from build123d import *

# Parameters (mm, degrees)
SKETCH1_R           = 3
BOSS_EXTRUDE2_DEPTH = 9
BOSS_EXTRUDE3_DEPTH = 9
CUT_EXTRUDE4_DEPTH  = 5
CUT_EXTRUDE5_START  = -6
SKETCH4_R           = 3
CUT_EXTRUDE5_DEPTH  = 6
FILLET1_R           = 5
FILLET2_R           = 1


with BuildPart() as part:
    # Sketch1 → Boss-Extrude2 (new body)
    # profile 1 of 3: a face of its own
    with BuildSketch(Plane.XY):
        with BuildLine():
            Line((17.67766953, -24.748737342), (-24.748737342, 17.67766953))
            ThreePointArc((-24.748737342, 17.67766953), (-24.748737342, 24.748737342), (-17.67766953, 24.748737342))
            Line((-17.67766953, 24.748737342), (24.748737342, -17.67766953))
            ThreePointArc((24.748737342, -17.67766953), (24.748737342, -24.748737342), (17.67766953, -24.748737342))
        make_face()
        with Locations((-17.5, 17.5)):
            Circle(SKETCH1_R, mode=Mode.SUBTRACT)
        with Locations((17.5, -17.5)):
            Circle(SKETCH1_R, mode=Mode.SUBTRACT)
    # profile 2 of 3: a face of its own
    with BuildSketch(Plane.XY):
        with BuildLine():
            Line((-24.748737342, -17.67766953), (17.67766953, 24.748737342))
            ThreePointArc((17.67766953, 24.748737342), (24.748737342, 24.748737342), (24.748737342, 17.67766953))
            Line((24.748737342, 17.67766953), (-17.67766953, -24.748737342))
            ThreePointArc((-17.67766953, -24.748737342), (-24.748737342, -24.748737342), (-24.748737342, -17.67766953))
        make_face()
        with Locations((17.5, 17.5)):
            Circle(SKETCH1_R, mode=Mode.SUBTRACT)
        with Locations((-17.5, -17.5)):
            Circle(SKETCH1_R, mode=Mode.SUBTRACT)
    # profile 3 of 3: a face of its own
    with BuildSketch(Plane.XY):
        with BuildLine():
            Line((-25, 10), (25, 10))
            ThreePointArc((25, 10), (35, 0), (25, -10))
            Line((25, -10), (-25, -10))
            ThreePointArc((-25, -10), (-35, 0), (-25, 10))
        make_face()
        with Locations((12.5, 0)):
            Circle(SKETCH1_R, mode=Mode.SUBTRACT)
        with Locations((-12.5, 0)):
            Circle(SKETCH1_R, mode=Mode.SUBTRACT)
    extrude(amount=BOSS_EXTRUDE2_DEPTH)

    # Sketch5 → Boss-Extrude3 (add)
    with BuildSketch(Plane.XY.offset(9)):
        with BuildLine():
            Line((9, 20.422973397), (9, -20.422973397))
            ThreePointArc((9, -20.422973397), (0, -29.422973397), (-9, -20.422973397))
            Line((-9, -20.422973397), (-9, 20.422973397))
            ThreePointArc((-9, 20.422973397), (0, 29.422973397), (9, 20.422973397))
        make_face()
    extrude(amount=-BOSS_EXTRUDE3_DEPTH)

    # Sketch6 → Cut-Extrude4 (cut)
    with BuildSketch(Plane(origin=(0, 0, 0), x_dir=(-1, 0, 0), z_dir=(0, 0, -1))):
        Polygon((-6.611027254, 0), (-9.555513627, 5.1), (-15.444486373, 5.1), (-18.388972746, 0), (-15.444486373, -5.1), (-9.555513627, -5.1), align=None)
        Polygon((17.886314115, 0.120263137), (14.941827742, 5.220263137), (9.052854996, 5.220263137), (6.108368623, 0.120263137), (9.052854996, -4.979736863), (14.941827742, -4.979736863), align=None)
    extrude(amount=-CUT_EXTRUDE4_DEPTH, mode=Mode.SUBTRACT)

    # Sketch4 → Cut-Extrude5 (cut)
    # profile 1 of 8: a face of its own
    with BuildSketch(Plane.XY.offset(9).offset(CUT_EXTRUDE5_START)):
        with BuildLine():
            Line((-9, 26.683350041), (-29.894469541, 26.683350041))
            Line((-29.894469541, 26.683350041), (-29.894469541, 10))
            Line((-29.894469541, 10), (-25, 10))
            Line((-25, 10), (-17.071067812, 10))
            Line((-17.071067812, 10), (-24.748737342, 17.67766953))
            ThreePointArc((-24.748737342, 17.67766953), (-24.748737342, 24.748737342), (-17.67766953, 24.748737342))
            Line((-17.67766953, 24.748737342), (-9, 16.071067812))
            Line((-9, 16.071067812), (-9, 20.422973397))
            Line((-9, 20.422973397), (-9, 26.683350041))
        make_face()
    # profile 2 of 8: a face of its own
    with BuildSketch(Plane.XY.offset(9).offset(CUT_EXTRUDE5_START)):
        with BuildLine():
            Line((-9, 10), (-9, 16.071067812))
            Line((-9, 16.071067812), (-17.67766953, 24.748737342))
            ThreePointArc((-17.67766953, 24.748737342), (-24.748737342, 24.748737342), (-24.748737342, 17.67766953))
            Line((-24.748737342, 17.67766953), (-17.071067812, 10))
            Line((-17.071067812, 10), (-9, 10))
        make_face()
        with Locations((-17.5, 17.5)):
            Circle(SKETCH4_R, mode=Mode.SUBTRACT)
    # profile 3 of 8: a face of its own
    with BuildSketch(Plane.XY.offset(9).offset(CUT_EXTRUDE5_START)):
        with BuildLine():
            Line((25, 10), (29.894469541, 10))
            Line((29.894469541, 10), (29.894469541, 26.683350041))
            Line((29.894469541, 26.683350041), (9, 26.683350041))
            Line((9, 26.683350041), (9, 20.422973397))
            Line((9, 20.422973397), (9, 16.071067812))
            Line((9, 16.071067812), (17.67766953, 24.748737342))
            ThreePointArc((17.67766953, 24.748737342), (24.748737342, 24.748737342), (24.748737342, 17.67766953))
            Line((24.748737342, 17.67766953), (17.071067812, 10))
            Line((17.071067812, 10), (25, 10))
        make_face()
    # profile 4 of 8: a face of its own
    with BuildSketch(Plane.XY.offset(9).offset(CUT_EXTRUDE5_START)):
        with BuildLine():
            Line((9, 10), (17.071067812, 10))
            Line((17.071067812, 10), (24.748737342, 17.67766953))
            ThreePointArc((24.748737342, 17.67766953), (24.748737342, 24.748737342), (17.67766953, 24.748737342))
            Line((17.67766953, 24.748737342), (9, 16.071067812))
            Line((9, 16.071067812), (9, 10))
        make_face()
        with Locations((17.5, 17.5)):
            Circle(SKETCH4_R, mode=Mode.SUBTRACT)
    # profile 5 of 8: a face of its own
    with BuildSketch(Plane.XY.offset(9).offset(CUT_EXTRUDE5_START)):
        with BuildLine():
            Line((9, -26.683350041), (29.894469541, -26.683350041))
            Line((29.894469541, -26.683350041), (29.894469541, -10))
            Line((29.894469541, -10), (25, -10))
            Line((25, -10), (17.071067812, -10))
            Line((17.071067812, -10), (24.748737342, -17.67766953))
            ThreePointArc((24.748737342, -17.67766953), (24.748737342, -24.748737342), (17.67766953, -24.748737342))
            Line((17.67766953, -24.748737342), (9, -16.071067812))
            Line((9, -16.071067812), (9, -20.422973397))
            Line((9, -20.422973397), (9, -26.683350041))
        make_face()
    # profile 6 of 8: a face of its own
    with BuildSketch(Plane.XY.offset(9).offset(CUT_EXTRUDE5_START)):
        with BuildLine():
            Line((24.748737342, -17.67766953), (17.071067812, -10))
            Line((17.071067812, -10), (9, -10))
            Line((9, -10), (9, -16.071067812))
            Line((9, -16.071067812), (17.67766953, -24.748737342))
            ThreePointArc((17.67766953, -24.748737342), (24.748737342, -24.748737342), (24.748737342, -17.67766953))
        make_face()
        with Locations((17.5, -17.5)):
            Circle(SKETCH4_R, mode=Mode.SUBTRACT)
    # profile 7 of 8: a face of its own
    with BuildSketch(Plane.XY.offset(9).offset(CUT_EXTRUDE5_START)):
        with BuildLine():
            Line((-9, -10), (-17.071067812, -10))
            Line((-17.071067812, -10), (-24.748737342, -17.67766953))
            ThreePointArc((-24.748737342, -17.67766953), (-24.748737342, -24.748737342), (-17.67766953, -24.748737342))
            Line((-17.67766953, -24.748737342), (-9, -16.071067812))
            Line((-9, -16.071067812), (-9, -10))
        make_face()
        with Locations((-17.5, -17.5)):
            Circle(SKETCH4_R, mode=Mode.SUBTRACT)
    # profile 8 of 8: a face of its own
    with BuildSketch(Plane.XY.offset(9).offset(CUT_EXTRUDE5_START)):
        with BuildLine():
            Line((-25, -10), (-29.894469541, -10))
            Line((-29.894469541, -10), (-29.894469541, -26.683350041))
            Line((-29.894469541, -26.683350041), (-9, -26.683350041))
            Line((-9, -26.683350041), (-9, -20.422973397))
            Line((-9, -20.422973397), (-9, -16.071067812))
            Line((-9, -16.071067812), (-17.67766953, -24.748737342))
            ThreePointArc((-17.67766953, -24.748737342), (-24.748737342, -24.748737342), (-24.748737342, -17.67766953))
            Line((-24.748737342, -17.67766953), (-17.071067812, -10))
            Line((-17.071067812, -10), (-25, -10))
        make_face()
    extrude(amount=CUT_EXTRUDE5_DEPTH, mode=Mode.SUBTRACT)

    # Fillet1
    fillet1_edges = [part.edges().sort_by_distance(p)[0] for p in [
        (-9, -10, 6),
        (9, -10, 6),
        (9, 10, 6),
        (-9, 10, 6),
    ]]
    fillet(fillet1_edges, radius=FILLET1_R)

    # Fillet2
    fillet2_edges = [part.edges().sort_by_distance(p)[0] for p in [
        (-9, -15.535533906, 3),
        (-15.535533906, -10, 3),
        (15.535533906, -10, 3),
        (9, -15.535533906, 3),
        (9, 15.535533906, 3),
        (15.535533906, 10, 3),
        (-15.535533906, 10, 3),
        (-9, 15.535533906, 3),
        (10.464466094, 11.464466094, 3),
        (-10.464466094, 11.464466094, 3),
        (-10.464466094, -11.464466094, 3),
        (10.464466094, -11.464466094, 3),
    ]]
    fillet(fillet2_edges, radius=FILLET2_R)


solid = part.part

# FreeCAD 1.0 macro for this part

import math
import FreeCAD as App
import Part
import Sketcher

V = App.Vector
Q = App.Units.Quantity


def edges_at(feature, points):
    """Names of the edges that pass closest to the given points."""
    edges = feature.Shape.Edges
    near = lambda p: min(range(len(edges)), key=lambda i: edges[i].distToShape(Part.Vertex(*p))[0])
    return sorted({f"Edge{near(p) + 1}" for p in points})


def add_polygon(sketch, points):
    """Adds a closed chain of lines whose ends are joined by coincident constraints."""
    first, n = sketch.GeometryCount, len(points)
    for a, b in zip(points, points[1:] + points[:1]):
        sketch.addGeometry(Part.LineSegment(App.Vector(*a, 0), App.Vector(*b, 0)), False)
    for i in range(n):
        sketch.addConstraint(Sketcher.Constraint("Coincident", first + i, 2, first + (i + 1) % n, 1))

doc = App.newDocument("Part")
body = doc.addObject("PartDesign::Body", "Body")

sketch1 = doc.addObject("Sketcher::SketchObject", "Sketch")
body.addObject(sketch1)
sketch1.AttachmentSupport = (doc.XY_Plane, [""])
sketch1.MapMode = "FlatFace"
sketch1.addGeometry([
    Part.ArcOfCircle(Part.Circle(V(21.213203, -21.213203, 0), V(0, 0, 1), 5), math.radians(-135), math.radians(45)),
    Part.LineSegment(V(24.748737, -17.67767, 0), V(17.071068, -10, 0)),
    Part.LineSegment(V(17.071068, -10, 0), V(25, -10, 0)),
    Part.ArcOfCircle(Part.Circle(V(25, 0, 0), V(0, 0, 1), 10), math.radians(-90), math.radians(90)),
    Part.LineSegment(V(25, 10, 0), V(17.071068, 10, 0)),
    Part.LineSegment(V(17.071068, 10, 0), V(24.748737, 17.67767, 0)),
    Part.ArcOfCircle(Part.Circle(V(21.213203, 21.213203, 0), V(0, 0, 1), 5), math.radians(-45), math.radians(135)),
    Part.LineSegment(V(17.67767, 24.748737, 0), V(2.928932, 10, 0)),
    Part.LineSegment(V(2.928932, 10, 0), V(-2.928932, 10, 0)),
    Part.LineSegment(V(-2.928932, 10, 0), V(-17.67767, 24.748737, 0)),
    Part.ArcOfCircle(Part.Circle(V(-21.213203, 21.213203, 0), V(0, 0, 1), 5), math.radians(45), math.radians(225)),
    Part.LineSegment(V(-24.748737, 17.67767, 0), V(-17.071068, 10, 0)),
    Part.LineSegment(V(-17.071068, 10, 0), V(-25, 10, 0)),
    Part.ArcOfCircle(Part.Circle(V(-25, 0, 0), V(0, 0, 1), 10), math.radians(90), math.radians(270)),
    Part.LineSegment(V(-25, -10, 0), V(-17.071068, -10, 0)),
    Part.LineSegment(V(-17.071068, -10, 0), V(-24.748737, -17.67767, 0)),
    Part.ArcOfCircle(Part.Circle(V(-21.213203, -21.213203, 0), V(0, 0, 1), 5), math.radians(135), math.radians(315)),
    Part.LineSegment(V(-17.67767, -24.748737, 0), V(-2.928932, -10, 0)),
    Part.LineSegment(V(-2.928932, -10, 0), V(2.928932, -10, 0)),
    Part.LineSegment(V(2.928932, -10, 0), V(17.67767, -24.748737, 0)),
    Part.Circle(V(17.5, -17.5, 0), V(0, 0, 1), 3),
    Part.Circle(V(12.5, 0, 0), V(0, 0, 1), 3),
    Part.Circle(V(-17.5, -17.5, 0), V(0, 0, 1), 3),
    Part.Circle(V(-12.5, 0, 0), V(0, 0, 1), 3),
    Part.Circle(V(17.5, 17.5, 0), V(0, 0, 1), 3),
    Part.Circle(V(-17.5, 17.5, 0), V(0, 0, 1), 3),
], False)
sketch1.addConstraint([
    Sketcher.Constraint("Tangent", 0, 2, 1, 1),
    Sketcher.Constraint("Coincident", 1, 2, 2, 1),
    Sketcher.Constraint("Tangent", 2, 2, 3, 1),
    Sketcher.Constraint("Tangent", 3, 2, 4, 1),
    Sketcher.Constraint("Coincident", 4, 2, 5, 1),
    Sketcher.Constraint("Tangent", 5, 2, 6, 1),
    Sketcher.Constraint("Tangent", 6, 2, 7, 1),
    Sketcher.Constraint("Coincident", 7, 2, 8, 1),
    Sketcher.Constraint("Coincident", 8, 2, 9, 1),
    Sketcher.Constraint("Tangent", 9, 2, 10, 1),
    Sketcher.Constraint("Tangent", 10, 2, 11, 1),
    Sketcher.Constraint("Coincident", 11, 2, 12, 1),
    Sketcher.Constraint("Tangent", 12, 2, 13, 1),
    Sketcher.Constraint("Tangent", 13, 2, 14, 1),
    Sketcher.Constraint("Coincident", 14, 2, 15, 1),
    Sketcher.Constraint("Tangent", 15, 2, 16, 1),
    Sketcher.Constraint("Tangent", 16, 2, 17, 1),
    Sketcher.Constraint("Coincident", 17, 2, 18, 1),
    Sketcher.Constraint("Coincident", 18, 2, 19, 1),
    Sketcher.Constraint("Tangent", 19, 2, 0, 1),
    Sketcher.Constraint("Horizontal", 2),
    Sketcher.Constraint("Horizontal", 4),
    Sketcher.Constraint("Horizontal", 8),
    Sketcher.Constraint("Horizontal", 12),
    Sketcher.Constraint("Horizontal", 14),
    Sketcher.Constraint("Horizontal", 18),
    Sketcher.Constraint("Equal", 0, 6),
    Sketcher.Constraint("Equal", 6, 10),
    Sketcher.Constraint("Equal", 3, 13),
    Sketcher.Constraint("Equal", 10, 16),
    Sketcher.Constraint("Equal", 20, 21),
    Sketcher.Constraint("Equal", 21, 22),
    Sketcher.Constraint("Equal", 22, 23),
    Sketcher.Constraint("Equal", 23, 24),
    Sketcher.Constraint("Equal", 24, 25),
    Sketcher.Constraint("Symmetric", 0, 3, 10, 3, -1, 1),
    Sketcher.Constraint("Symmetric", 3, 3, 13, 3, -1, 1),
    Sketcher.Constraint("Symmetric", 6, 3, 16, 3, -1, 1),
    Sketcher.Constraint("Symmetric", 21, 3, 23, 3, -1, 1),
    Sketcher.Constraint("Symmetric", 22, 3, 24, 3, -1, 1),
    Sketcher.Constraint("Symmetric", 20, 3, 25, 3, -1, 1),
    Sketcher.Constraint("Symmetric", 7, 2, 17, 2, -1, 1),
    Sketcher.Constraint("Symmetric", 6, 3, 10, 3, -2),
    Sketcher.Constraint("Symmetric", 20, 3, 22, 3, -2),
    Sketcher.Constraint("Symmetric", 4, 2, 11, 2, -2),
    Sketcher.Constraint("PointOnObject", 21, 3, -1),
    Sketcher.Constraint("Perpendicular", 1, 5),
    Sketcher.Constraint("Parallel", 5, 7),
    Sketcher.Constraint("Perpendicular", 7, 9),
    Sketcher.Constraint("Parallel", 9, 11),
    Sketcher.Constraint("Perpendicular", 11, 15),
    Sketcher.Constraint("Perpendicular", 17, 19),
    Sketcher.Constraint("Horizontal", 4, 2, 7, 2),
    Sketcher.Constraint("Diameter", 20, 6.0),
    Sketcher.Constraint("Radius", 0, 5.0),
    Sketcher.Constraint("Radius", 3, 10.0),
    Sketcher.Constraint("DistanceX", -1, 1, 3, 3, 25.0),
    Sketcher.Constraint("DistanceX", 21, 3, 20, 3, 5.0),
    Sketcher.Constraint("DistanceX", 22, 3, 21, 3, 30.0),
    Sketcher.Constraint("DistanceY", 20, 3, 24, 3, 35.0),
    Sketcher.Constraint("DistanceX", 8, 2, 4, 2, 20.0),
    Sketcher.Constraint("DistanceX", 4, 2, 6, 2, 0.606602),
])
pad1 = doc.addObject("PartDesign::Pad", "Pad")
body.addObject(pad1)
pad1.Profile = sketch1
pad1.Length = 9

sketch2 = doc.addObject("Sketcher::SketchObject", "Sketch001")
body.addObject(sketch2)
sketch2.AttachmentSupport = (doc.XY_Plane, [""])
sketch2.MapMode = "FlatFace"
sketch2.AttachmentOffset = App.Placement(V(0, 0, 9), App.Rotation())
sketch2.addGeometry([
    Part.LineSegment(V(9, -20.422973, 0), V(9, 20.422973, 0)),
    Part.ArcOfCircle(Part.Circle(V(0, 20.422973, 0), V(0, 0, 1), 9), math.radians(0), math.radians(180)),
    Part.LineSegment(V(-9, 20.422973, 0), V(-9, -20.422973, 0)),
    Part.ArcOfCircle(Part.Circle(V(0, -20.422973, 0), V(0, 0, 1), 9), math.radians(180), math.radians(360)),
], False)
sketch2.addConstraint([
    Sketcher.Constraint("Tangent", 0, 2, 1, 1),
    Sketcher.Constraint("Tangent", 1, 2, 2, 1),
    Sketcher.Constraint("Tangent", 2, 2, 3, 1),
    Sketcher.Constraint("Tangent", 3, 2, 0, 1),
    Sketcher.Constraint("Vertical", 0),
    Sketcher.Constraint("Vertical", 2),
    Sketcher.Constraint("Symmetric", 1, 3, 3, 3, -1, 1),
    Sketcher.Constraint("Radius", 1, 9.0),
    Sketcher.Constraint("DistanceY", 0, 1, 0, 2, 40.845947),
])
pad2 = doc.addObject("PartDesign::Pad", "Pad001")
body.addObject(pad2)
pad2.Profile = sketch2
pad2.Length = 9
pad2.Reversed = True

sketch3 = doc.addObject("Sketcher::SketchObject", "Sketch002")
body.addObject(sketch3)
sketch3.AttachmentSupport = (doc.XY_Plane, [""])
sketch3.MapMode = "FlatFace"
add_polygon(sketch3, [(6.611027, 0), (9.555514, 5.1), (15.444486, 5.1), (18.388973, 0), (15.444486, -5.1), (9.555514, -5.1)])
add_polygon(sketch3, [(-17.886314, 0.120263), (-14.941828, 5.220263), (-9.052855, 5.220263), (-6.108369, 0.120263), (-9.052855, -4.979737), (-14.941828, -4.979737)])
sketch3.addConstraint([
    Sketcher.Constraint("Horizontal", 1),
    Sketcher.Constraint("Horizontal", 4),
    Sketcher.Constraint("Horizontal", 7),
    Sketcher.Constraint("Horizontal", 10),
    Sketcher.Constraint("Symmetric", 1, 2, 3, 2, -1),
    Sketcher.Constraint("PointOnObject", 2, 2, -1),
    Sketcher.Constraint("PointOnObject", 5, 2, -1),
    Sketcher.Constraint("Parallel", 0, 3),
    Sketcher.Constraint("Parallel", 2, 5),
    Sketcher.Constraint("Parallel", 3, 6),
    Sketcher.Constraint("Parallel", 5, 8),
    Sketcher.Constraint("Parallel", 6, 9),
    Sketcher.Constraint("Parallel", 8, 11),
    Sketcher.Constraint("Horizontal", 8, 2, 11, 2),
    Sketcher.Constraint("Vertical", 7, 2, 9, 2),
    Sketcher.Constraint("Equal", 4, 7),
    Sketcher.Constraint("Equal", 5, 6),
    Sketcher.Constraint("Angle", 0, Q("60 deg")),
    Sketcher.Constraint("DistanceY", -1, 1, 0, 2, 5.1),
    Sketcher.Constraint("DistanceX", 1, 1, 1, 2, 5.888973),
    Sketcher.Constraint("DistanceX", 8, 2, -1, 1, 6.108369),
    Sketcher.Constraint("DistanceX", 6, 2, 0, 2, 24.497341),
    Sketcher.Constraint("DistanceY", -1, 1, 6, 2, 5.220263),
])
pocket1 = doc.addObject("PartDesign::Pocket", "Pocket")
body.addObject(pocket1)
pocket1.Profile = sketch3
pocket1.Length = 5
pocket1.Reversed = True

sketch4 = doc.addObject("Sketcher::SketchObject", "Sketch003")
body.addObject(sketch4)
sketch4.AttachmentSupport = (doc.XY_Plane, [""])
sketch4.MapMode = "FlatFace"
sketch4.AttachmentOffset = App.Placement(V(0, 0, 3), App.Rotation())
add_polygon(sketch4, [(-9, 26.68335), (-29.89447, 26.68335), (-29.89447, 10), (-9, 10)])
sketch4.addGeometry(Part.Circle(V(-17.5, 17.5, 0), V(0, 0, 1), 3), False)
add_polygon(sketch4, [(29.89447, 10), (29.89447, 26.68335), (9, 26.68335), (9, 10)])
sketch4.addGeometry(Part.Circle(V(17.5, 17.5, 0), V(0, 0, 1), 3), False)
add_polygon(sketch4, [(9, -26.68335), (29.89447, -26.68335), (29.89447, -10), (9, -10)])
sketch4.addGeometry(Part.Circle(V(17.5, -17.5, 0), V(0, 0, 1), 3), False)
add_polygon(sketch4, [(-9, -10), (-29.89447, -10), (-29.89447, -26.68335), (-9, -26.68335)])
sketch4.addGeometry(Part.Circle(V(-17.5, -17.5, 0), V(0, 0, 1), 3), False)
sketch4.addConstraint([
    Sketcher.Constraint("Horizontal", 0),
    Sketcher.Constraint("Vertical", 1),
    Sketcher.Constraint("Horizontal", 2),
    Sketcher.Constraint("Vertical", 3),
    Sketcher.Constraint("Vertical", 5),
    Sketcher.Constraint("Horizontal", 6),
    Sketcher.Constraint("Vertical", 7),
    Sketcher.Constraint("Horizontal", 8),
    Sketcher.Constraint("Horizontal", 10),
    Sketcher.Constraint("Vertical", 11),
    Sketcher.Constraint("Horizontal", 12),
    Sketcher.Constraint("Vertical", 13),
    Sketcher.Constraint("Horizontal", 15),
    Sketcher.Constraint("Vertical", 16),
    Sketcher.Constraint("Horizontal", 17),
    Sketcher.Constraint("Vertical", 18),
    Sketcher.Constraint("Equal", 4, 9),
    Sketcher.Constraint("Equal", 9, 14),
    Sketcher.Constraint("Equal", 14, 19),
    Sketcher.Constraint("Symmetric", 4, 3, 14, 3, -1, 1),
    Sketcher.Constraint("Symmetric", 9, 3, 19, 3, -1, 1),
    Sketcher.Constraint("Symmetric", 0, 2, 10, 2, -1, 1),
    Sketcher.Constraint("Symmetric", 2, 2, 12, 2, -1, 1),
    Sketcher.Constraint("Symmetric", 8, 2, 15, 2, -1, 1),
    Sketcher.Constraint("Symmetric", 6, 2, 17, 2, -1, 1),
    Sketcher.Constraint("Symmetric", 4, 3, 9, 3, -2),
    Sketcher.Constraint("Symmetric", 0, 2, 5, 2, -2),
    Sketcher.Constraint("Symmetric", 2, 2, 7, 2, -2),
    Sketcher.Constraint("Diameter", 4, 6.0),
    Sketcher.Constraint("DistanceY", -1, 1, 1, 2, 10.0),
    Sketcher.Constraint("DistanceX", 2, 2, -1, 1, 9.0),
    Sketcher.Constraint("DistanceX", 4, 3, 9, 3, 35.0),
    Sketcher.Constraint("DistanceY", 14, 3, 9, 3, 35.0),
    Sketcher.Constraint("DistanceX", 0, 2, 0, 1, 20.89447),
    Sketcher.Constraint("DistanceY", 1, 2, 1, 1, 16.68335),
])
pocket2 = doc.addObject("PartDesign::Pocket", "Pocket001")
body.addObject(pocket2)
pocket2.Profile = sketch4
pocket2.Length = 6
pocket2.Reversed = True
doc.recompute()

fillet = doc.addObject("PartDesign::Fillet", "Fillet")
body.addObject(fillet)
fillet.Base = (pocket2, edges_at(pocket2, [
    (-9, -10, 6),
    (9, -10, 6),
    (9, 10, 6),
    (-9, 10, 6),
]))
fillet.Radius = 5
doc.recompute()

fillet2 = doc.addObject("PartDesign::Fillet", "Fillet001")
body.addObject(fillet2)
fillet2.Base = (fillet, edges_at(fillet, [
    (-9, -15.536, 3),
    (-15.536, -10, 3),
    (15.536, -10, 3),
    (9, -15.536, 3),
    (9, 15.536, 3),
    (15.536, 10, 3),
    (-15.536, 10, 3),
    (-9, 15.536, 3),
    (10.464, 11.464, 3),
    (-10.464, 11.464, 3),
    (-10.464, -11.464, 3),
    (10.464, -11.464, 3),
]))
fillet2.Radius = 1

doc.recompute()
